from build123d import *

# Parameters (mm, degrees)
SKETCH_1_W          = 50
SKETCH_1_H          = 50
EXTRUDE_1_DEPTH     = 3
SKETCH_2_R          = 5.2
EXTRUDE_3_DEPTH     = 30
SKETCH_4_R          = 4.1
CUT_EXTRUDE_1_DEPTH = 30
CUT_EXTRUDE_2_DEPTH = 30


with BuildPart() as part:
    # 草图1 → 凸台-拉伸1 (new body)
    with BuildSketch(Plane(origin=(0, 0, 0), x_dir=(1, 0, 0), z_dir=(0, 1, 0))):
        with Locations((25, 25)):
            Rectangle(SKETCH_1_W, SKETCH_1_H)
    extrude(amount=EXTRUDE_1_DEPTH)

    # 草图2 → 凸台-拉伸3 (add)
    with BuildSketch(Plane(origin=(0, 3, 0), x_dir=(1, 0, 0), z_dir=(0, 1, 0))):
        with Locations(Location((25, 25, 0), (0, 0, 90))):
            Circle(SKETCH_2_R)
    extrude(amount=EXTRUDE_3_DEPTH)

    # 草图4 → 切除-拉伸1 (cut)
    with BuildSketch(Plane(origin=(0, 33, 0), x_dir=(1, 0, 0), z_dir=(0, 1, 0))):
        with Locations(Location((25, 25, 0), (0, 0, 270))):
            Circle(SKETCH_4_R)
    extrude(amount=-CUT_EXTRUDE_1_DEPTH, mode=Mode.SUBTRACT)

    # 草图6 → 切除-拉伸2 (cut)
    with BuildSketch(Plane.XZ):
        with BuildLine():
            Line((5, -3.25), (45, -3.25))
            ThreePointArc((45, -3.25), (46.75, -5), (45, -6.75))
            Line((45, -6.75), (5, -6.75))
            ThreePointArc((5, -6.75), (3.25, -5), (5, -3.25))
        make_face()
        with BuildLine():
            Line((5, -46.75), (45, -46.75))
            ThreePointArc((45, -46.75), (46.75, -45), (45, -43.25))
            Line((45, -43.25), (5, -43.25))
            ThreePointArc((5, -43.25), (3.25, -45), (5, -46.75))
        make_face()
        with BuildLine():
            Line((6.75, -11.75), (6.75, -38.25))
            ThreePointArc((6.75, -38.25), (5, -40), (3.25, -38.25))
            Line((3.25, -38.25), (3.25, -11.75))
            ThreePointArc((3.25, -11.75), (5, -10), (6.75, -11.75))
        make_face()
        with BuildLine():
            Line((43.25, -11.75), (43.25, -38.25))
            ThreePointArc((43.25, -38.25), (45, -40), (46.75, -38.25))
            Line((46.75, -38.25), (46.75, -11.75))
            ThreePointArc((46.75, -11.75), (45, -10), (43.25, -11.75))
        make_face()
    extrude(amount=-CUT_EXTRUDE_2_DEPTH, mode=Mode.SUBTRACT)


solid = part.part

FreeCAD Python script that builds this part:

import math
import FreeCAD as App
import Part
import Sketcher

V = App.Vector
Q = App.Units.Quantity


def add_polygon(sketch, points):
    """Adds a closed chain of lines whose ends are joined by coincident constraints."""
    first, n = sketch.GeometryCount, len(points)
    for a, b in zip(points, points[1:] + points[:1]):
        sketch.addGeometry(Part.LineSegment(App.Vector(*a, 0), App.Vector(*b, 0)), False)
    for i in range(n):
        sketch.addConstraint(Sketcher.Constraint("Coincident", first + i, 2, first + (i + 1) % n, 1))

doc = App.newDocument("Part")
body = doc.addObject("PartDesign::Body", "Body")

sketch1 = doc.addObject("Sketcher::SketchObject", "Sketch")
body.addObject(sketch1)
sketch1.AttachmentSupport = (doc.XZ_Plane, [""])
sketch1.MapMode = "FlatFace"
add_polygon(sketch1, [(0, -50), (0, 0), (50, 0), (50, -50)])
sketch1.addConstraint(Sketcher.Constraint("Vertical", 0))
sketch1.addConstraint(Sketcher.Constraint("Horizontal", 1))
sketch1.addConstraint(Sketcher.Constraint("Vertical", 2))
sketch1.addConstraint(Sketcher.Constraint("Horizontal", 3))
sketch1.addConstraint(Sketcher.Constraint("Coincident", 0, 2, -1, 1))
sketch1.addConstraint(Sketcher.Constraint("Equal", 3, 0))
sketch1.addConstraint(Sketcher.Constraint("DistanceX", 1, 1, 1, 2, Q("50 mm")))
pad1 = doc.addObject("PartDesign::Pad", "Pad")
body.addObject(pad1)
pad1.Profile = sketch1
pad1.Length = 3
pad1.Reversed = True

sketch2 = doc.addObject("Sketcher::SketchObject", "Sketch001")
body.addObject(sketch2)
sketch2.AttachmentSupport = (doc.XZ_Plane, [""])
sketch2.MapMode = "FlatFace"
sketch2.AttachmentOffset = App.Placement(V(0, 0, -3), App.Rotation())
sketch2.addGeometry(Part.Circle(V(25, -25, 0), V(0, 0, 1), 5), False)
sketch2.addConstraint(Sketcher.Constraint("Diameter", 0, Q("10.4 mm")))
sketch2.addConstraint(Sketcher.Constraint("DistanceX", -1, 1, 0, 3, Q("25 mm")))
sketch2.addConstraint(Sketcher.Constraint("DistanceY", 0, 3, -1, 1, Q("25 mm")))
pad2 = doc.addObject("PartDesign::Pad", "Pad001")
body.addObject(pad2)
pad2.Profile = sketch2
pad2.Length = 30
pad2.Reversed = True

sketch3 = doc.addObject("Sketcher::SketchObject", "Sketch002")
body.addObject(sketch3)
sketch3.AttachmentSupport = (doc.XZ_Plane, [""])
sketch3.MapMode = "FlatFace"
sketch3.AttachmentOffset = App.Placement(V(0, 0, -33), App.Rotation())
sketch3.addGeometry(Part.Circle(V(25, -25, 0), V(0, 0, 1), 4.1), False)
sketch3.addConstraint(Sketcher.Constraint("Diameter", 0, Q("8.2 mm")))
sketch3.addConstraint(Sketcher.Constraint("DistanceX", -1, 1, 0, 3, Q("25 mm")))
sketch3.addConstraint(Sketcher.Constraint("DistanceY", 0, 3, -1, 1, Q("25 mm")))
pocket1 = doc.addObject("PartDesign::Pocket", "Pocket")
body.addObject(pocket1)
pocket1.Profile = sketch3
pocket1.Length = 30
pocket1.Reversed = True

sketch4 = doc.addObject("Sketcher::SketchObject", "Sketch003")
body.addObject(sketch4)
sketch4.AttachmentSupport = (doc.XZ_Plane, [""])
sketch4.MapMode = "FlatFace"
sketch4.addGeometry(Part.LineSegment(V(45, -3.2, 0), V(5, -3.2, 0)), False)
sketch4.addGeometry(Part.ArcOfCircle(Part.Circle(V(5, -5, 0), V(0, 0, 1), 1.8), math.radians(90), math.radians(270)), False)
sketch4.addGeometry(Part.LineSegment(V(5, -6.8, 0), V(45, -6.8, 0)), False)
sketch4.addGeometry(Part.ArcOfCircle(Part.Circle(V(45, -5, 0), V(0, 0, 1), 1.8), math.radians(-90), math.radians(90)), False)
sketch4.addGeometry(Part.LineSegment(V(5, -46.8, 0), V(45, -46.8, 0)), False)
sketch4.addGeometry(Part.ArcOfCircle(Part.Circle(V(45, -45, 0), V(0, 0, 1), 1.8), math.radians(-90), math.radians(90)), False)
sketch4.addGeometry(Part.LineSegment(V(45, -43.2, 0), V(5, -43.2, 0)), False)
sketch4.addGeometry(Part.ArcOfCircle(Part.Circle(V(5, -45, 0), V(0, 0, 1), 1.8), math.radians(90), math.radians(270)), False)
sketch4.addGeometry(Part.LineSegment(V(6.8, -38.2, 0), V(6.8, -11.8, 0)), False)
sketch4.addGeometry(Part.ArcOfCircle(Part.Circle(V(5, -11.8, 0), V(0, 0, 1), 1.8), math.radians(0), math.radians(180)), False)
sketch4.addGeometry(Part.LineSegment(V(3.2, -11.8, 0), V(3.2, -38.2, 0)), False)
sketch4.addGeometry(Part.ArcOfCircle(Part.Circle(V(5, -38.2, 0), V(0, 0, 1), 1.8), math.radians(180), math.radians(360)), False)
sketch4.addGeometry(Part.LineSegment(V(43.2, -11.8, 0), V(43.2, -38.2, 0)), False)
sketch4.addGeometry(Part.ArcOfCircle(Part.Circle(V(45, -38.2, 0), V(0, 0, 1), 1.8), math.radians(180), math.radians(360)), False)
sketch4.addGeometry(Part.LineSegment(V(46.8, -38.2, 0), V(46.8, -11.8, 0)), False)
sketch4.addGeometry(Part.ArcOfCircle(Part.Circle(V(45, -11.8, 0), V(0, 0, 1), 1.8), math.radians(0), math.radians(180)), False)
sketch4.addConstraint(Sketcher.Constraint("Tangent", 0, 2, 1, 1))
sketch4.addConstraint(Sketcher.Constraint("Tangent", 1, 2, 2, 1))
sketch4.addConstraint(Sketcher.Constraint("Tangent", 2, 2, 3, 1))
sketch4.addConstraint(Sketcher.Constraint("Tangent", 3, 2, 0, 1))
sketch4.addConstraint(Sketcher.Constraint("Tangent", 4, 2, 5, 1))
sketch4.addConstraint(Sketcher.Constraint("Tangent", 5, 2, 6, 1))
sketch4.addConstraint(Sketcher.Constraint("Tangent", 6, 2, 7, 1))
sketch4.addConstraint(Sketcher.Constraint("Tangent", 7, 2, 4, 1))
sketch4.addConstraint(Sketcher.Constraint("Tangent", 8, 2, 9, 1))
sketch4.addConstraint(Sketcher.Constraint("Tangent", 9, 2, 10, 1))
sketch4.addConstraint(Sketcher.Constraint("Tangent", 10, 2, 11, 1))
sketch4.addConstraint(Sketcher.Constraint("Tangent", 11, 2, 8, 1))
sketch4.addConstraint(Sketcher.Constraint("Tangent", 12, 2, 13, 1))
sketch4.addConstraint(Sketcher.Constraint("Tangent", 13, 2, 14, 1))
sketch4.addConstraint(Sketcher.Constraint("Tangent", 14, 2, 15, 1))
sketch4.addConstraint(Sketcher.Constraint("Tangent", 15, 2, 12, 1))
sketch4.addConstraint(Sketcher.Constraint("Horizontal", 0))
sketch4.addConstraint(Sketcher.Constraint("Horizontal", 2))
sketch4.addConstraint(Sketcher.Constraint("Horizontal", 4))
sketch4.addConstraint(Sketcher.Constraint("Horizontal", 6))
sketch4.addConstraint(Sketcher.Constraint("Vertical", 8))
sketch4.addConstraint(Sketcher.Constraint("Vertical", 10))
sketch4.addConstraint(Sketcher.Constraint("Vertical", 12))
sketch4.addConstraint(Sketcher.Constraint("Vertical", 14))
sketch4.addConstraint(Sketcher.Constraint("Equal", 3, 5))
sketch4.addConstraint(Sketcher.Constraint("Equal", 7, 9))
sketch4.addConstraint(Sketcher.Constraint("Equal", 11, 13))
sketch4.addConstraint(Sketcher.Constraint("Horizontal", 11, 3, 13, 3))
sketch4.addConstraint(Sketcher.Constraint("Horizontal", 9, 3, 15, 3))
sketch4.addConstraint(Sketcher.Constraint("Vertical", 3, 3, 5, 3))
sketch4.addConstraint(Sketcher.Constraint("Vertical", 1, 3, 7, 3))
sketch4.addConstraint(Sketcher.Constraint("Vertical", 7, 3, 9, 3))
sketch4.addConstraint(Sketcher.Constraint("Vertical", 5, 3, 13, 3))
sketch4.addConstraint(Sketcher.Constraint("DistanceX", 0, 2, 0, 1, Q("40 mm")))
sketch4.addConstraint(Sketcher.Constraint("Radius", 1, Q("1.75 mm")))
sketch4.addConstraint(Sketcher.Constraint("DistanceY", 8, 1, 8, 2, Q("26.5 mm")))
sketch4.addConstraint(Sketcher.Constraint("DistanceX", -1, 1, 1, 3, Q("5 mm")))
sketch4.addConstraint(Sketcher.Constraint("DistanceY", 1, 3, -1, 1, Q("5 mm")))
sketch4.addConstraint(Sketcher.Constraint("DistanceY", 5, 3, -1, 1, Q("45 mm")))
sketch4.addConstraint(Sketcher.Constraint("DistanceY", 11, 3, 0, 2, Q("35 mm")))
pocket2 = doc.addObject("PartDesign::Pocket", "Pocket001")
body.addObject(pocket2)
pocket2.Profile = sketch4
pocket2.Length = 30

doc.recompute()
